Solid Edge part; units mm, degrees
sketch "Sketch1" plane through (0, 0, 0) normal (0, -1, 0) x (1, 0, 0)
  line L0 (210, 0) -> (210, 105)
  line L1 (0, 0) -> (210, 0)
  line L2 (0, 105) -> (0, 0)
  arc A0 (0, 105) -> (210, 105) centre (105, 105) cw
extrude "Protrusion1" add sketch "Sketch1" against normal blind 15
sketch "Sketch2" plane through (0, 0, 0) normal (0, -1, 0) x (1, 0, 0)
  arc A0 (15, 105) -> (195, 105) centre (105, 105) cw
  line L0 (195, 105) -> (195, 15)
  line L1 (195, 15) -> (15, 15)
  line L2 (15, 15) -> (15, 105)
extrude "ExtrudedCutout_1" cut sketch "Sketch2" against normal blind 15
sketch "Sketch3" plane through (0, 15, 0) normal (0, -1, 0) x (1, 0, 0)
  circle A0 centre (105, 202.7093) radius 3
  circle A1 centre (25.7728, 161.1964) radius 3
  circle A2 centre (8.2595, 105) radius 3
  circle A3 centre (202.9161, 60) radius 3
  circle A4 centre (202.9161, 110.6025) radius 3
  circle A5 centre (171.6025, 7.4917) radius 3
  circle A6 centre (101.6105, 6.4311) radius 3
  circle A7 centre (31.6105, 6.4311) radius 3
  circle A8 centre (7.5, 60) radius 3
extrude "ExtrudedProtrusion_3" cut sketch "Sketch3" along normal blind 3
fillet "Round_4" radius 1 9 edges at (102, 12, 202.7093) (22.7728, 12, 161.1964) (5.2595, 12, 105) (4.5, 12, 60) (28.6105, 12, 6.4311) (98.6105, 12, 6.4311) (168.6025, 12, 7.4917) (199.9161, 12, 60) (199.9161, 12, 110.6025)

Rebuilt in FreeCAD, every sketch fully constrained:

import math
import FreeCAD as App
import Part
import Sketcher

V = App.Vector
Q = App.Units.Quantity


def edges_at(feature, points):
    """Names of the edges that pass closest to the given points."""
    edges = feature.Shape.Edges
    near = lambda p: min(range(len(edges)), key=lambda i: edges[i].distToShape(Part.Vertex(*p))[0])
    return sorted({f"Edge{near(p) + 1}" for p in points})

doc = App.newDocument("Part")
body = doc.addObject("PartDesign::Body", "Body")

sketch1 = body.newObject("Sketcher::SketchObject", "Sketch")
sketch1.AttachmentSupport = (doc.getObject("XZ_Plane"), [""])
sketch1.MapMode = "FlatFace"
sketch1.addGeometry(Part.LineSegment(V(0, 0, 0), V(210, 0, 0)), False)
sketch1.addGeometry(Part.LineSegment(V(210, 0, 0), V(210, 105, 0)), False)
sketch1.addGeometry(Part.ArcOfCircle(Part.Circle(V(105, 105, 0), V(0, 0, 1), 105), math.radians(0), math.radians(180)), False)
sketch1.addGeometry(Part.LineSegment(V(0, 105, 0), V(0, 0, 0)), False)
sketch1.addConstraint(Sketcher.Constraint("Coincident", 0, 2, 1, 1))
sketch1.addConstraint(Sketcher.Constraint("Tangent", 1, 2, 2, 1))
sketch1.addConstraint(Sketcher.Constraint("Tangent", 2, 2, 3, 1))
sketch1.addConstraint(Sketcher.Constraint("Coincident", 3, 2, 0, 1))
sketch1.addConstraint(Sketcher.Constraint("Horizontal", 0))
sketch1.addConstraint(Sketcher.Constraint("Vertical", 1))
sketch1.addConstraint(Sketcher.Constraint("Vertical", 3))
sketch1.addConstraint(Sketcher.Constraint("Coincident", 3, 2, -1, 1))
sketch1.addConstraint(Sketcher.Constraint("Radius", 2, Q("105 mm")))
sketch1.addConstraint(Sketcher.Constraint("DistanceY", 1, 1, 1, 2, Q("105 mm")))
pad1 = body.newObject("PartDesign::Pad", "Pad")
pad1.Profile = sketch1
pad1.Length = 15
pad1.Reversed = True

sketch2 = body.newObject("Sketcher::SketchObject", "Sketch001")
sketch2.AttachmentSupport = (doc.getObject("XZ_Plane"), [""])
sketch2.MapMode = "FlatFace"
sketch2.addGeometry(Part.ArcOfCircle(Part.Circle(V(105, 105, 0), V(0, 0, 1), 90), math.radians(0), math.radians(180)), False)
sketch2.addGeometry(Part.LineSegment(V(15, 105, 0), V(15, 15, 0)), False)
sketch2.addGeometry(Part.LineSegment(V(15, 15, 0), V(195, 15, 0)), False)
sketch2.addGeometry(Part.LineSegment(V(195, 15, 0), V(195, 105, 0)), False)
sketch2.addConstraint(Sketcher.Constraint("Tangent", 0, 2, 1, 1))
sketch2.addConstraint(Sketcher.Constraint("Coincident", 1, 2, 2, 1))
sketch2.addConstraint(Sketcher.Constraint("Coincident", 2, 2, 3, 1))
sketch2.addConstraint(Sketcher.Constraint("Tangent", 3, 2, 0, 1))
sketch2.addConstraint(Sketcher.Constraint("Vertical", 1))
sketch2.addConstraint(Sketcher.Constraint("Horizontal", 2))
sketch2.addConstraint(Sketcher.Constraint("Vertical", 3))
sketch2.addConstraint(Sketcher.Constraint("Radius", 0, Q("90 mm")))
sketch2.addConstraint(Sketcher.Constraint("DistanceY", 1, 2, 1, 1, Q("90 mm")))
sketch2.addConstraint(Sketcher.Constraint("DistanceX", -1, 1, 0, 3, Q("105 mm")))
sketch2.addConstraint(Sketcher.Constraint("DistanceY", -1, 1, 0, 3, Q("105 mm")))
pocket1 = body.newObject("PartDesign::Pocket", "Pocket")
pocket1.Profile = sketch2
pocket1.Length = 15

sketch3 = body.newObject("Sketcher::SketchObject", "Sketch002")
sketch3.AttachmentSupport = (doc.getObject("XZ_Plane"), [""])
sketch3.MapMode = "FlatFace"
sketch3.AttachmentOffset = App.Placement(V(0, 0, -15), App.Rotation())
sketch3.addGeometry(Part.Circle(V(105, 202.7, 0), V(0, 0, 1), 3), False)
sketch3.addGeometry(Part.Circle(V(25.8, 161.2, 0), V(0, 0, 1), 3), False)
sketch3.addGeometry(Part.Circle(V(8.3, 105, 0), V(0, 0, 1), 3), False)
sketch3.addGeometry(Part.Circle(V(202.9, 60, 0), V(0, 0, 1), 3), False)
sketch3.addGeometry(Part.Circle(V(202.9, 110.6, 0), V(0, 0, 1), 3), False)
sketch3.addGeometry(Part.Circle(V(171.6, 7.5, 0), V(0, 0, 1), 3), False)
sketch3.addGeometry(Part.Circle(V(101.6, 6.4, 0), V(0, 0, 1), 3), False)
sketch3.addGeometry(Part.Circle(V(31.6, 6.4, 0), V(0, 0, 1), 3), False)
sketch3.addGeometry(Part.Circle(V(7.5, 60, 0), V(0, 0, 1), 3), False)
sketch3.addConstraint(Sketcher.Constraint("Equal", 0, 1))
sketch3.addConstraint(Sketcher.Constraint("Equal", 1, 2))
sketch3.addConstraint(Sketcher.Constraint("Equal", 2, 3))
sketch3.addConstraint(Sketcher.Constraint("Equal", 3, 4))
sketch3.addConstraint(Sketcher.Constraint("Equal", 4, 5))
sketch3.addConstraint(Sketcher.Constraint("Equal", 5, 6))
sketch3.addConstraint(Sketcher.Constraint("Equal", 6, 7))
sketch3.addConstraint(Sketcher.Constraint("Equal", 7, 8))
sketch3.addConstraint(Sketcher.Constraint("Horizontal", 6, 3, 7, 3))
sketch3.addConstraint(Sketcher.Constraint("Horizontal", 3, 3, 8, 3))
sketch3.addConstraint(Sketcher.Constraint("Vertical", 3, 3, 4, 3))
sketch3.addConstraint(Sketcher.Constraint("Diameter", 0, Q("6 mm")))
sketch3.addConstraint(Sketcher.Constraint("DistanceX", -1, 1, 0, 3, Q("105 mm")))
sketch3.addConstraint(Sketcher.Constraint("DistanceY", -1, 1, 2, 3, Q("105 mm")))
sketch3.addConstraint(Sketcher.Constraint("DistanceY", -1, 1, 3, 3, Q("60 mm")))
sketch3.addConstraint(Sketcher.Constraint("DistanceX", 7, 3, 6, 3, Q("70 mm")))
sketch3.addConstraint(Sketcher.Constraint("DistanceX", -1, 1, 8, 3, Q("7.5 mm")))
sketch3.addConstraint(Sketcher.Constraint("DistanceX", -1, 1, 3, 3, Q("202.916 mm")))
sketch3.addConstraint(Sketcher.Constraint("DistanceY", -1, 1, 6, 3, Q("6.431 mm")))
sketch3.addConstraint(Sketcher.Constraint("DistanceY", 1, 3, 0, 3, Q("41.513 mm")))
sketch3.addConstraint(Sketcher.Constraint("DistanceY", 4, 3, 1, 3, Q("50.594 mm")))
sketch3.addConstraint(Sketcher.Constraint("DistanceX", 2, 3, 5, 3, Q("163.343 mm")))
sketch3.addConstraint(Sketcher.Constraint("DistanceX", 6, 3, 5, 3, Q("69.992 mm")))
sketch3.addConstraint(Sketcher.Constraint("DistanceY", -1, 1, 0, 3, Q("202.7093 mm")))
sketch3.addConstraint(Sketcher.Constraint("DistanceX", -1, 1, 1, 3, Q("25.7728 mm")))
sketch3.addConstraint(Sketcher.Constraint("DistanceX", -1, 1, 2, 3, Q("8.2595 mm")))
sketch3.addConstraint(Sketcher.Constraint("DistanceY", -1, 1, 5, 3, Q("7.4917 mm")))
pocket2 = body.newObject("PartDesign::Pocket", "Pocket001")
pocket2.Profile = sketch3
pocket2.Length = 3
pocket2.Reversed = True
doc.recompute()

fillet = body.newObject("PartDesign::Fillet", "Fillet")
fillet.Base = (pocket2, edges_at(pocket2, [
    (102, 12, 202.709),
    (22.773, 12, 161.196),
    (5.26, 12, 105),
    (4.5, 12, 60),
    (28.61, 12, 6.431),
    (98.611, 12, 6.431),
    (168.602, 12, 7.492),
    (199.916, 12, 60),
    (199.916, 12, 110.603),
]))
fillet.Radius = 1

doc.recompute()
